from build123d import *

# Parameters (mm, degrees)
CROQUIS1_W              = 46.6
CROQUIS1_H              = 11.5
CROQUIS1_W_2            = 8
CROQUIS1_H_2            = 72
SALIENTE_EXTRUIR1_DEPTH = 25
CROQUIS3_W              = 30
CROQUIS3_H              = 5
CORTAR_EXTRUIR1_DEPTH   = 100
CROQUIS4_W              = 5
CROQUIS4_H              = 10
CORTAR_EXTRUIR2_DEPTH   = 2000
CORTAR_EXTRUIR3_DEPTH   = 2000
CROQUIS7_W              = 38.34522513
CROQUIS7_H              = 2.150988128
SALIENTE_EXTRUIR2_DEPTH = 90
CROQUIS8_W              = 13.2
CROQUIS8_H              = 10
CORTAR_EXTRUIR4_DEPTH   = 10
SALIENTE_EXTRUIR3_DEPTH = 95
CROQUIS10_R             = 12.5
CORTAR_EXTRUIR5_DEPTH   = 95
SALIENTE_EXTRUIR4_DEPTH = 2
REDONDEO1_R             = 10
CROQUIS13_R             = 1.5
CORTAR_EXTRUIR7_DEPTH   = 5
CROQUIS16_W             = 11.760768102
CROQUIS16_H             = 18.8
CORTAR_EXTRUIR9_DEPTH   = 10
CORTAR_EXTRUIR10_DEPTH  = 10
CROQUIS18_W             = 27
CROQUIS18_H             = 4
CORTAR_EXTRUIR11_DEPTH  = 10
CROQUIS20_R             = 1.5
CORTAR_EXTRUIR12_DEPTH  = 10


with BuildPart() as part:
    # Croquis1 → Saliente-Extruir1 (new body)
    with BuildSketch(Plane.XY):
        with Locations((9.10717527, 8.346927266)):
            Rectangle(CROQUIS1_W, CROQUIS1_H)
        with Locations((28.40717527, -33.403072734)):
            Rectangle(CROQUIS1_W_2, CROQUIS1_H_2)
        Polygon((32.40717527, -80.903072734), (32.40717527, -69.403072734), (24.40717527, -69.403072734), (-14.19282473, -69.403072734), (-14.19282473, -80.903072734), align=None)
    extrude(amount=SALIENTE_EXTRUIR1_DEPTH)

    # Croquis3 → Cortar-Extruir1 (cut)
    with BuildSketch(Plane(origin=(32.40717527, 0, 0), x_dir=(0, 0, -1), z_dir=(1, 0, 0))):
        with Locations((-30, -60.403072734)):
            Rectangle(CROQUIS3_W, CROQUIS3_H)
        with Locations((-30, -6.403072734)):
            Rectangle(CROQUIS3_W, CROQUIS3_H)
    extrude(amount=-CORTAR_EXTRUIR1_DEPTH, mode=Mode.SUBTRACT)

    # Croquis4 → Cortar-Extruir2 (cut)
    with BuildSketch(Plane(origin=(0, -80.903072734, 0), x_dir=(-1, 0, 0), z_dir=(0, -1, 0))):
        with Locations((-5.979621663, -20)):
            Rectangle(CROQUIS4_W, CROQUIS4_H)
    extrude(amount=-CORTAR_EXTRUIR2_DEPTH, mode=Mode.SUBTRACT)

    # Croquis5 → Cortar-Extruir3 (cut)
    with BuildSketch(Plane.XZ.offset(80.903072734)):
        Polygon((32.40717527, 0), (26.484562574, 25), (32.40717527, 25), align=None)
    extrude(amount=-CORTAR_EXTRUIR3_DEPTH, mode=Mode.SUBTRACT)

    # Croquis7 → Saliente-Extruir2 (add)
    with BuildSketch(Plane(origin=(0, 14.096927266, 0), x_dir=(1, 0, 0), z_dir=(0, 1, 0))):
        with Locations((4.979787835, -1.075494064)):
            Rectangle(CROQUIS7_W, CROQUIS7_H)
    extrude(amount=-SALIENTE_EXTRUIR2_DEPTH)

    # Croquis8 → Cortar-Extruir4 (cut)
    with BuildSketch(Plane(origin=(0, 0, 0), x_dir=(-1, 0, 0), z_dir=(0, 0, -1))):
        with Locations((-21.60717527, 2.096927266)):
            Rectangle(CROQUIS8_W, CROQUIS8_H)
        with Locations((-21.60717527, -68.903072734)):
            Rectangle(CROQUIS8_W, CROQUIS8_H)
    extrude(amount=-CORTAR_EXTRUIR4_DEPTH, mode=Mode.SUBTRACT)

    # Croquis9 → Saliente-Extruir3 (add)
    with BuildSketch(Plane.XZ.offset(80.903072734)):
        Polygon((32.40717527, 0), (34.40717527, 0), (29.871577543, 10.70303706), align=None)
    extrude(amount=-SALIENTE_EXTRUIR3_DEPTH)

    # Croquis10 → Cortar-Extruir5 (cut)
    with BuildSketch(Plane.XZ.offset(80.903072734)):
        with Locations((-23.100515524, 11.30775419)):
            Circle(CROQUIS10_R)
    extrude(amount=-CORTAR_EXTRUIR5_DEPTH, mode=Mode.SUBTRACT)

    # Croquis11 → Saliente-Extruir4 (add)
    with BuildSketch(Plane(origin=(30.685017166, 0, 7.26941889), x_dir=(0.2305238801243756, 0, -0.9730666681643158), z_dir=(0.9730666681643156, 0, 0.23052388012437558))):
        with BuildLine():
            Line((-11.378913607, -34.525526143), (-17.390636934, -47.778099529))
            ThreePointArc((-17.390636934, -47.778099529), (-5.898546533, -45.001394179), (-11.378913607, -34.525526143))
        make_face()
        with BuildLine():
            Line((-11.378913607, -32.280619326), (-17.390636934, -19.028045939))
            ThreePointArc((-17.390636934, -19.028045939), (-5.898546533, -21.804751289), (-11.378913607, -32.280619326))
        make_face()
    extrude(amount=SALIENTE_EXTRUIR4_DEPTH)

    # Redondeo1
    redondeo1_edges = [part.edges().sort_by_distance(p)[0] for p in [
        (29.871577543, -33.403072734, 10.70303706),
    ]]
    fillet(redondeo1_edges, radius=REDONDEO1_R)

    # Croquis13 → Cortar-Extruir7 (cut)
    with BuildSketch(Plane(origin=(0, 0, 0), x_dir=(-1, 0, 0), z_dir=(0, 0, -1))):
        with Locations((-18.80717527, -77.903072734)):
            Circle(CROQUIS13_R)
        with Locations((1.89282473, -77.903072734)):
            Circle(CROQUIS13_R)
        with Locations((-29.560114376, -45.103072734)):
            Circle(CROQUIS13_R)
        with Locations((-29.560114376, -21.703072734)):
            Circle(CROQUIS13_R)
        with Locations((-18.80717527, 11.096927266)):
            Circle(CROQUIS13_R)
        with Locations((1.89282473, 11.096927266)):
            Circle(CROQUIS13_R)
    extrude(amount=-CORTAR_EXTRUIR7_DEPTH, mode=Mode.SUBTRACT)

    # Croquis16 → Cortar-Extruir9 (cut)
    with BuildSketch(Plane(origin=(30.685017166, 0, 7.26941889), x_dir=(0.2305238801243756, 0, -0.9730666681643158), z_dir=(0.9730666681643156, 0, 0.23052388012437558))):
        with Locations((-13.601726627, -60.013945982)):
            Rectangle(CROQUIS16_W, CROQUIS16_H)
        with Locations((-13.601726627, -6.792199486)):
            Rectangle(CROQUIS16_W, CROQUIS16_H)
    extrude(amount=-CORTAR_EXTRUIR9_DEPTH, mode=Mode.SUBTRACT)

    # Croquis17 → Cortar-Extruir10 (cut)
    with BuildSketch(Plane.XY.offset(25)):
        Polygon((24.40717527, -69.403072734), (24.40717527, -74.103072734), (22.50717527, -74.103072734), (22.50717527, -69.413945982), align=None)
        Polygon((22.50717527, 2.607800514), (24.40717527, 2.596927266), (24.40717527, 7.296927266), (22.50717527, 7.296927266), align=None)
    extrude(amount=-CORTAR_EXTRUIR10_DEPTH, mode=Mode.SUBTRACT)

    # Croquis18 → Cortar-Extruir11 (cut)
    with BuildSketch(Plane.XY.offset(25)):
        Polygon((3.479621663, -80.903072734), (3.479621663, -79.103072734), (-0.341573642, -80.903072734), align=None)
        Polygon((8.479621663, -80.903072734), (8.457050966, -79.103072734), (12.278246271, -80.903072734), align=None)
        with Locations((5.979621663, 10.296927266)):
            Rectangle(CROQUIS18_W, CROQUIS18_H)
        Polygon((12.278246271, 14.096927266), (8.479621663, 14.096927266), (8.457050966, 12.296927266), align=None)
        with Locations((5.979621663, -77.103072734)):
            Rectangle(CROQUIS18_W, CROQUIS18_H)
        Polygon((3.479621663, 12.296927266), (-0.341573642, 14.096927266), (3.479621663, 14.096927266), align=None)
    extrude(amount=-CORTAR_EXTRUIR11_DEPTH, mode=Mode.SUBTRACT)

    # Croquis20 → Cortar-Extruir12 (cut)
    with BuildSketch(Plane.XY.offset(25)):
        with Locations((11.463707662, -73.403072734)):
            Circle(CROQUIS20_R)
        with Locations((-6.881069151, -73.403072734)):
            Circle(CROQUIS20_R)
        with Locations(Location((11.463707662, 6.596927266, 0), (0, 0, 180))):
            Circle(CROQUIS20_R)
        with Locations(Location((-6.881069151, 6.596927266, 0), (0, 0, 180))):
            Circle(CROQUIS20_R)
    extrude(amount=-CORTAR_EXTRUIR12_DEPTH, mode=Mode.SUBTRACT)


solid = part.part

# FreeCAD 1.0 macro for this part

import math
import FreeCAD as App
import Part
import Sketcher
from FreeCAD import Vector
Q = App.Units.Quantity


def edges_at(feature, points):
    """Names of the edges that pass closest to the given points."""
    edges = feature.Shape.Edges
    near = lambda p: min(range(len(edges)), key=lambda i: edges[i].distToShape(Part.Vertex(*p))[0])
    return sorted({f"Edge{near(p) + 1}" for p in points})


def add_polygon(sketch, points):
    """Adds a closed chain of lines whose ends are joined by coincident constraints."""
    first, n = sketch.GeometryCount, len(points)
    for a, b in zip(points, points[1:] + points[:1]):
        sketch.addGeometry(Part.LineSegment(App.Vector(*a, 0), App.Vector(*b, 0)), False)
    for i in range(n):
        sketch.addConstraint(Sketcher.Constraint("Coincident", first + i, 2, first + (i + 1) % n, 1))

doc = App.newDocument("Part")
params = doc.addObject("Spreadsheet::Sheet", "Params")
for row, (alias, value) in enumerate([
    ("sketch1_height", "72 mm"),
    ("sketch1_height2", "95 mm"),
    ("sketch1_width", "38.6 mm"),
    ("sketch1_width2", "46.6 mm"),
    ("pad1_length", "25 mm"),
    ("sketch2_width", "5 mm"),
    ("sketch2_height", "30 mm"),
    ("pocket1_length", "100 mm"),
    ("sketch3_width", "5 mm"),
    ("sketch3_height", "10 mm"),
    ("pocket2_length", "2000 mm"),
    ("sketch4_height", "25 mm"),
    ("pocket3_length", "2000 mm"),
    ("pad2_length", "90 mm"),
    ("sketch6_height", "10 mm"),
    ("sketch6_width", "13.2 mm"),
    ("pocket4_length", "10 mm"),
    ("sketch7_width", "2 mm"),
    ("pad3_length", "95 mm"),
    ("sketch8_diameter", "25 mm"),
    ("pocket5_length", "95 mm"),
    ("sketch9_radius", "7.5 mm"),
    ("pad4_length", "2 mm"),
    ("fillet_radius", "10 mm"),
    ("sketch10_diameter", "3 mm"),
    ("pocket6_length", "5 mm"),
    ("sketch11_height", "18.8 mm"),
    ("pocket7_length", "10 mm"),
    ("sketch12_width", "1.9 mm"),
    ("sketch12_height", "4.7 mm"),
    ("pocket8_length", "10 mm"),
    ("sketch13_width", "27 mm"),
    ("sketch13_width2", "11 mm"),
    ("sketch13_height", "4 mm"),
    ("sketch13_height2", "1.8 mm"),
    ("pocket9_length", "10 mm"),
    ("sketch14_diameter", "3 mm"),
    ("pocket10_length", "10 mm"),
], start=1):
    params.set(f"A{row}", alias)
    params.set(f"B{row}", "=" + value)
    params.setAlias(f"B{row}", alias)

body = doc.addObject("PartDesign::Body", "Body")

# Sketch on XY plane
sketch1 = body.newObject("Sketcher::SketchObject", "Sketch")
sketch1.AttachmentSupport = (doc.getObject("XY_Plane"), [""])
sketch1.MapMode = "FlatFace"
add_polygon(sketch1, [(-14, 14), (-14, 3), (24, 3), (24, -69), (-14, -69), (-14, -81), (32, -81), (32, 14)])  # lines 0-7
sketch1.addConstraint([
    Sketcher.Constraint("Vertical", 0),
    Sketcher.Constraint("Horizontal", 1),
    Sketcher.Constraint("Vertical", 2),
    Sketcher.Constraint("Horizontal", 3),
    Sketcher.Constraint("Vertical", 4),
    Sketcher.Constraint("Horizontal", 5),
    Sketcher.Constraint("Vertical", 6),
    Sketcher.Constraint("Horizontal", 7),
    Sketcher.Constraint("Vertical", 0, 2, 3, 2),
    Sketcher.Constraint("Equal", 0, 4),
    Sketcher.Constraint("DistanceY", 2, 2, 2, 1, Q("72 mm")),
    Sketcher.Constraint("DistanceY", 6, 1, 6, 2, Q("95 mm")),
    Sketcher.Constraint("DistanceX", 1, 1, 1, 2, Q("38.6 mm")),
    Sketcher.Constraint("DistanceX", 5, 1, 5, 2, Q("46.6 mm")),
    Sketcher.Constraint("DistanceX", 0, 2, -1, 1, Q("14.192825 mm")),
    Sketcher.Constraint("DistanceY", -1, 1, 0, 2, Q("2.596927 mm")),
])
sketch1.setExpression("Constraints[18]", "Params.sketch1_height")
sketch1.setExpression("Constraints[19]", "Params.sketch1_height2")
sketch1.setExpression("Constraints[20]", "Params.sketch1_width")
sketch1.setExpression("Constraints[21]", "Params.sketch1_width2")
pad1 = body.newObject("PartDesign::Pad", "Pad")
pad1.Profile = sketch1
pad1.setExpression("Length", "Params.pad1_length")

# Sketch on YZ plane
sketch2 = body.newObject("Sketcher::SketchObject", "Sketch001")
sketch2.AttachmentSupport = (doc.getObject("YZ_Plane"), [""])
sketch2.MapMode = "FlatFace"
sketch2.AttachmentOffset = App.Placement(Vector(0, 0, 32.407175), App.Rotation())
add_polygon(sketch2, [(-58, 45), (-63, 45), (-63, 15), (-58, 15)])  # lines 0-3
add_polygon(sketch2, [(-4, 45), (-9, 45), (-9, 15), (-4, 15)])  # lines 4-7
sketch2.addConstraint([
    Sketcher.Constraint("Horizontal", 0),
    Sketcher.Constraint("Vertical", 1),
    Sketcher.Constraint("Horizontal", 2),
    Sketcher.Constraint("Vertical", 3),
    Sketcher.Constraint("Horizontal", 4),
    Sketcher.Constraint("Vertical", 5),
    Sketcher.Constraint("Horizontal", 6),
    Sketcher.Constraint("Vertical", 7),
    Sketcher.Constraint("Horizontal", 3, 2, 4, 2),
    Sketcher.Constraint("Horizontal", 2, 2, 5, 2),
    Sketcher.Constraint("Equal", 2, 4),
    Sketcher.Constraint("DistanceX", 0, 2, 0, 1, Q("5 mm")),
    Sketcher.Constraint("DistanceY", 1, 2, 1, 1, Q("30 mm")),
    Sketcher.Constraint("DistanceY", -1, 1, 0, 2, Q("45 mm")),
    Sketcher.Constraint("DistanceX", 3, 2, 4, 2, Q("49 mm")),
    Sketcher.Constraint("DistanceX", 0, 2, -1, 1, Q("62.903073 mm")),
])
sketch2.setExpression("Constraints[19]", "Params.sketch2_width")
sketch2.setExpression("Constraints[20]", "Params.sketch2_height")
pocket1 = body.newObject("PartDesign::Pocket", "Pocket")
pocket1.Profile = sketch2
pocket1.setExpression("Length", "Params.pocket1_length")

# Sketch on XZ plane
sketch3 = body.newObject("Sketcher::SketchObject", "Sketch002")
sketch3.AttachmentSupport = (doc.getObject("XZ_Plane"), [""])
sketch3.MapMode = "FlatFace"
sketch3.AttachmentOffset = App.Placement(Vector(0, 0, 80.903073), App.Rotation())
add_polygon(sketch3, [(8, 15), (8, 25), (3, 25), (3, 15)])  # lines 0-3
sketch3.addConstraint([
    Sketcher.Constraint("Vertical", 0),
    Sketcher.Constraint("Horizontal", 1),
    Sketcher.Constraint("Vertical", 2),
    Sketcher.Constraint("Horizontal", 3),
    Sketcher.Constraint("DistanceX", 1, 2, 1, 1, Q("5 mm")),
    Sketcher.Constraint("DistanceY", 0, 1, 0, 2, Q("10 mm")),
    Sketcher.Constraint("DistanceY", -1, 1, 0, 2, Q("25 mm")),
    Sketcher.Constraint("DistanceX", -1, 1, 0, 2, Q("8.479622 mm")),
])
sketch3.setExpression("Constraints[8]", "Params.sketch3_width")
sketch3.setExpression("Constraints[9]", "Params.sketch3_height")
pocket2 = body.newObject("PartDesign::Pocket", "Pocket001")
pocket2.Profile = sketch3
pocket2.setExpression("Length", "Params.pocket2_length")

# Sketch on XZ plane
sketch4 = body.newObject("Sketcher::SketchObject", "Sketch003")
sketch4.AttachmentSupport = (doc.getObject("XZ_Plane"), [""])
sketch4.MapMode = "FlatFace"
sketch4.AttachmentOffset = App.Placement(Vector(0, 0, 80.903073), App.Rotation())
add_polygon(sketch4, [(26, 25), (32, 0), (32, 25)])  # lines 0-2
sketch4.addConstraint([
    Sketcher.Constraint("Vertical", 1),
    Sketcher.Constraint("Horizontal", 2),
    Sketcher.Constraint("PointOnObject", 0, 2, -1),
    Sketcher.Constraint("DistanceY", 1, 1, 1, 2, Q("25 mm")),
    Sketcher.Constraint("Distance", 0, Q("25.69197 mm")),
    Sketcher.Constraint("DistanceX", -1, 1, 0, 2, Q("32.407175 mm")),
])
sketch4.setExpression("Constraints[6]", "Params.sketch4_height")
pocket3 = body.newObject("PartDesign::Pocket", "Pocket002")
pocket3.Profile = sketch4
pocket3.setExpression("Length", "Params.pocket3_length")

# Sketch on XZ plane
sketch5 = body.newObject("Sketcher::SketchObject", "Sketch004")
sketch5.AttachmentSupport = (doc.getObject("XZ_Plane"), [""])
sketch5.MapMode = "FlatFace"
sketch5.AttachmentOffset = App.Placement(Vector(0, 0, -14.096927), App.Rotation())
add_polygon(sketch5, [(-14.2, 0), (-14.2, 2.2), (24.2, 2.2), (24.2, 0)])  # lines 0-3
sketch5.addConstraint([
    Sketcher.Constraint("Vertical", 0),
    Sketcher.Constraint("Horizontal", 1),
    Sketcher.Constraint("Vertical", 2),
    Sketcher.Constraint("Horizontal", 3),
    Sketcher.Constraint("PointOnObject", 2, 2, -1),
    Sketcher.Constraint("DistanceY", 0, 1, 0, 2, Q("2.150988 mm")),
    Sketcher.Constraint("DistanceX", -1, 1, 1, 2, Q("24.1524 mm")),
    Sketcher.Constraint("DistanceX", 1, 1, 1, 2, Q("38.345225 mm")),
])
pad2 = body.newObject("PartDesign::Pad", "Pad001")
pad2.Profile = sketch5
pad2.setExpression("Length", "Params.pad2_length")

# Sketch on XY plane
sketch6 = body.newObject("Sketcher::SketchObject", "Sketch005")
sketch6.AttachmentSupport = (doc.getObject("XY_Plane"), [""])
sketch6.MapMode = "FlatFace"
add_polygon(sketch6, [(28, 7), (28, -3), (15, -3), (15, 7)])  # lines 0-3
add_polygon(sketch6, [(28, -64), (28, -74), (15, -74), (15, -64)])  # lines 4-7
sketch6.addConstraint([
    Sketcher.Constraint("Vertical", 0),
    Sketcher.Constraint("Horizontal", 1),
    Sketcher.Constraint("Vertical", 2),
    Sketcher.Constraint("Horizontal", 3),
    Sketcher.Constraint("Vertical", 4),
    Sketcher.Constraint("Horizontal", 5),
    Sketcher.Constraint("Vertical", 6),
    Sketcher.Constraint("Horizontal", 7),
    Sketcher.Constraint("Vertical", 3, 2, 4, 2),
    Sketcher.Constraint("Vertical", 2, 2, 5, 2),
    Sketcher.Constraint("Equal", 2, 4),
    Sketcher.Constraint("DistanceY", 0, 2, 0, 1, Q("10 mm")),
    Sketcher.Constraint("DistanceX", 1, 2, 1, 1, Q("13.2 mm")),
    Sketcher.Constraint("DistanceY", 4, 2, 0, 2, Q("71 mm")),
    Sketcher.Constraint("DistanceX", -1, 1, 0, 2, Q("28.207175 mm")),
    Sketcher.Constraint("DistanceY", 0, 2, -1, 1, Q("2.903073 mm")),
])
sketch6.setExpression("Constraints[19]", "Params.sketch6_height")
sketch6.setExpression("Constraints[20]", "Params.sketch6_width")
pocket4 = body.newObject("PartDesign::Pocket", "Pocket003")
pocket4.Profile = sketch6
pocket4.setExpression("Length", "Params.pocket4_length")
pocket4.Reversed = True

# Sketch on XZ plane
sketch7 = body.newObject("Sketcher::SketchObject", "Sketch006")
sketch7.AttachmentSupport = (doc.getObject("XZ_Plane"), [""])
sketch7.MapMode = "FlatFace"
sketch7.AttachmentOffset = App.Placement(Vector(0, 0, 80.903073), App.Rotation())
add_polygon(sketch7, [(32.4, 0), (34.4, 0), (29.9, 10.7)])  # lines 0-2
sketch7.addConstraint([
    Sketcher.Constraint("Horizontal", 0),
    Sketcher.Constraint("PointOnObject", 0, 2, -1),
    Sketcher.Constraint("DistanceX", 0, 1, 0, 2, Q("2 mm")),
    Sketcher.Constraint("Distance", 1, Q("11.624399 mm")),
    Sketcher.Constraint("Distance", 2, Q("10.999284 mm")),
    Sketcher.Constraint("DistanceX", -1, 1, 0, 2, Q("34.407175 mm")),
])
sketch7.setExpression("Constraints[5]", "Params.sketch7_width")
pad3 = body.newObject("PartDesign::Pad", "Pad002")
pad3.Profile = sketch7
pad3.setExpression("Length", "Params.pad3_length")
pad3.Reversed = True

# Sketch on XZ plane
sketch8 = body.newObject("Sketcher::SketchObject", "Sketch007")
sketch8.AttachmentSupport = (doc.getObject("XZ_Plane"), [""])
sketch8.MapMode = "FlatFace"
sketch8.AttachmentOffset = App.Placement(Vector(0, 0, 80.903073), App.Rotation())
sketch8.addGeometry(Part.Circle(Vector(-23, 11, 0), Vector(0, 0, 1), 12), False)
sketch8.addConstraint([
    Sketcher.Constraint("Diameter", 0, Q("25 mm")),
    Sketcher.Constraint("DistanceX", 0, 3, -1, 1, Q("23.100516 mm")),
    Sketcher.Constraint("DistanceY", -1, 1, 0, 3, Q("11.307754 mm")),
])
sketch8.setExpression("Constraints[0]", "Params.sketch8_diameter")
pocket5 = body.newObject("PartDesign::Pocket", "Pocket004")
pocket5.Profile = sketch8
pocket5.setExpression("Length", "Params.pocket5_length")

# Sketch on an angled plane
sketch9 = body.newObject("Sketcher::SketchObject", "Sketch008")
sketch9.Placement = App.Placement(Vector(30.685017, 0, 7.269419), App.Rotation(Vector(0.23052388, 0, -0.973066668), Vector(0, 1, 0), Vector(0.973066668, 0, 0.23052388), "ZXY"))
sketch9.addGeometry([
    Part.LineSegment(Vector(-11, -35, 0), Vector(-17, -48, 0)),
    Part.ArcOfCircle(Part.Circle(Vector(-13, -42, 0), Vector(0, 0, 1), 8), math.radians(-128), math.radians(80)),
    Part.LineSegment(Vector(-17, -19, 0), Vector(-11, -32, 0)),
    Part.ArcOfCircle(Part.Circle(Vector(-13, -25, 0), Vector(0, 0, 1), 8), math.radians(-80), math.radians(128)),
], False)
sketch9.addConstraint([
    Sketcher.Constraint("Coincident", 0, 1, 1, 2),
    Sketcher.Constraint("Coincident", 1, 1, 0, 2),
    Sketcher.Constraint("Coincident", 2, 1, 3, 2),
    Sketcher.Constraint("Coincident", 3, 1, 2, 2),
    Sketcher.Constraint("Equal", 1, 3),
    Sketcher.Constraint("Vertical", 1, 3, 3, 3),
    Sketcher.Constraint("Vertical", 1, 1, 2, 1),
    Sketcher.Constraint("Vertical", 0, 1, 3, 1),
    Sketcher.Constraint("Radius", 1, Q("7.5 mm")),
    Sketcher.Constraint("DistanceY", 1, 3, 3, 3, Q("17 mm")),
    Sketcher.Constraint("DistanceY", 1, 1, -1, 1, Q("47.778099 mm")),
    Sketcher.Constraint("Distance", 0, Q("14.552372 mm")),
    Sketcher.Constraint("DistanceY", 3, 1, -1, 1, Q("32.280619 mm")),
    Sketcher.Constraint("DistanceX", 1, 3, -1, 1, Q("12.728657 mm")),
])
sketch9.setExpression("Constraints[8]", "Params.sketch9_radius")
pad4 = body.newObject("PartDesign::Pad", "Pad003")
pad4.Profile = sketch9
pad4.setExpression("Length", "Params.pad4_length")
doc.recompute()

fillet = body.newObject("PartDesign::Fillet", "Fillet")
fillet.Base = (pad4, edges_at(pad4, [(29.872, -33.403, 10.703)]))
fillet.setExpression("Radius", "Params.fillet_radius")

# Sketch on XY plane
sketch10 = body.newObject("Sketcher::SketchObject", "Sketch009")
sketch10.AttachmentSupport = (doc.getObject("XY_Plane"), [""])
sketch10.MapMode = "FlatFace"
sketch10.addGeometry([
    Part.Circle(Vector(18.8, -77.9, 0), Vector(0, 0, 1), 1.5),  # 0
    Part.Circle(Vector(-1.9, -77.9, 0), Vector(0, 0, 1), 1.5),  # 1
    Part.Circle(Vector(29.6, -45.1, 0), Vector(0, 0, 1), 1.5),  # 2
    Part.Circle(Vector(29.6, -21.7, 0), Vector(0, 0, 1), 1.5),  # 3
    Part.Circle(Vector(18.8, 11.1, 0), Vector(0, 0, 1), 1.5),  # 4
    Part.Circle(Vector(-1.9, 11.1, 0), Vector(0, 0, 1), 1.5),  # 5
], False)
sketch10.addConstraint([
    Sketcher.Constraint("Equal", 0, 1),
    Sketcher.Constraint("Equal", 1, 2),
    Sketcher.Constraint("Equal", 2, 3),
    Sketcher.Constraint("Equal", 3, 4),
    Sketcher.Constraint("Equal", 4, 5),
    Sketcher.Constraint("Horizontal", 0, 3, 1, 3),
    Sketcher.Constraint("Horizontal", 4, 3, 5, 3),
    Sketcher.Constraint("Vertical", 2, 3, 3, 3),
    Sketcher.Constraint("Vertical", 0, 3, 4, 3),
    Sketcher.Constraint("Vertical", 1, 3, 5, 3),
    Sketcher.Constraint("Diameter", 0, Q("3 mm")),
    Sketcher.Constraint("DistanceY", 0, 3, 4, 3, Q("89 mm")),
    Sketcher.Constraint("DistanceX", 1, 3, 0, 3, Q("20.7 mm")),
    Sketcher.Constraint("DistanceY", 0, 3, 2, 3, Q("32.8 mm")),
    Sketcher.Constraint("DistanceY", 2, 3, 3, 3, Q("23.4 mm")),
    Sketcher.Constraint("DistanceX", 0, 3, 2, 3, Q("10.752939 mm")),
    Sketcher.Constraint("DistanceX", -1, 1, 0, 3, Q("18.807175 mm")),
    Sketcher.Constraint("DistanceY", 0, 3, -1, 1, Q("77.903073 mm")),
])
sketch10.setExpression("Constraints[10]", "Params.sketch10_diameter")
pocket6 = body.newObject("PartDesign::Pocket", "Pocket005")
pocket6.Profile = sketch10
pocket6.setExpression("Length", "Params.pocket6_length")
pocket6.Reversed = True

# Sketch on an angled plane
sketch11 = body.newObject("Sketcher::SketchObject", "Sketch010")
sketch11.Placement = App.Placement(Vector(30.685017, 0, 7.269419), App.Rotation(Vector(0.23052388, 0, -0.973066668), Vector(0, 1, 0), Vector(0.973066668, 0, 0.23052388), "ZXY"))
add_polygon(sketch11, [(-19, -51), (-19, -69), (-8, -69), (-8, -51)])  # lines 0-3
add_polygon(sketch11, [(-19, 3), (-19, -16), (-8, -16), (-8, 3)])  # lines 4-7
sketch11.addConstraint([
    Sketcher.Constraint("Vertical", 0),
    Sketcher.Constraint("Horizontal", 1),
    Sketcher.Constraint("Vertical", 2),
    Sketcher.Constraint("Horizontal", 3),
    Sketcher.Constraint("Vertical", 4),
    Sketcher.Constraint("Horizontal", 5),
    Sketcher.Constraint("Vertical", 6),
    Sketcher.Constraint("Horizontal", 7),
    Sketcher.Constraint("Vertical", 3, 2, 4, 2),
    Sketcher.Constraint("Vertical", 2, 2, 5, 2),
    Sketcher.Constraint("Equal", 2, 4),
    Sketcher.Constraint("DistanceY", 0, 2, 0, 1, Q("18.8 mm")),
    Sketcher.Constraint("DistanceX", 1, 1, 1, 2, Q("11.760768 mm")),
    Sketcher.Constraint("DistanceY", 4, 2, -1, 1, Q("16.192199 mm")),
    Sketcher.Constraint("DistanceX", 0, 2, -1, 1, Q("19.482111 mm")),
    Sketcher.Constraint("DistanceY", 0, 2, -1, 1, Q("69.413946 mm")),
])
sketch11.setExpression("Constraints[19]", "Params.sketch11_height")
pocket7 = body.newObject("PartDesign::Pocket", "Pocket006")
pocket7.Profile = sketch11
pocket7.setExpression("Length", "Params.pocket7_length")

# Sketch on XY plane
sketch12 = body.newObject("Sketcher::SketchObject", "Sketch011")
sketch12.AttachmentSupport = (doc.getObject("XY_Plane"), [""])
sketch12.MapMode = "FlatFace"
sketch12.AttachmentOffset = App.Placement(Vector(0, 0, 25), App.Rotation())
add_polygon(sketch12, [(24.4, -74.1), (24.4, -69.4), (22.5, -69.4), (22.5, -74.1)])  # lines 0-3
add_polygon(sketch12, [(22.5, 2.6), (24.4, 2.6), (24.4, 7.3), (22.5, 7.3)])  # lines 4-7
sketch12.addConstraint([
    Sketcher.Constraint("Vertical", 0),
    Sketcher.Constraint("Vertical", 2),
    Sketcher.Constraint("Horizontal", 3),
    Sketcher.Constraint("Vertical", 5),
    Sketcher.Constraint("Horizontal", 6),
    Sketcher.Constraint("Vertical", 7),
    Sketcher.Constraint("Vertical", 3, 2, 4, 2),
    Sketcher.Constraint("Vertical", 2, 2, 6, 2),
    Sketcher.Constraint("Equal", 0, 5),
    Sketcher.Constraint("Equal", 2, 7),
    Sketcher.Constraint("DistanceX", 3, 1, 3, 2, Q("1.9 mm")),
    Sketcher.Constraint("DistanceY", 0, 1, 0, 2, Q("4.7 mm")),
    Sketcher.Constraint("DistanceY", 0, 2, 4, 2, Q("72 mm")),
    Sketcher.Constraint("DistanceY", -1, 1, 7, 2, Q("2.607801 mm")),
    Sketcher.Constraint("DistanceY", 2, 2, 2, 1, Q("4.689127 mm")),
    Sketcher.Constraint("DistanceX", -1, 1, 0, 2, Q("24.407175 mm")),
])
sketch12.setExpression("Constraints[18]", "Params.sketch12_width")
sketch12.setExpression("Constraints[19]", "Params.sketch12_height")
pocket8 = body.newObject("PartDesign::Pocket", "Pocket007")
pocket8.Profile = sketch12
pocket8.setExpression("Length", "Params.pocket8_length")

# Sketch on XY plane
sketch13 = body.newObject("Sketcher::SketchObject", "Sketch012")
sketch13.AttachmentSupport = (doc.getObject("XY_Plane"), [""])
sketch13.MapMode = "FlatFace"
sketch13.AttachmentOffset = App.Placement(Vector(0, 0, 25), App.Rotation())
add_polygon(sketch13, [(3.5, -80.9), (3.5, -79.1), (-0.3, -80.9)])  # lines 0-2
add_polygon(sketch13, [(8.5, -79.1), (8.5, -80.9), (12.3, -80.9)])  # lines 3-5
add_polygon(sketch13, [(-7.5, 12.3), (-7.5, 8.3), (19.5, 8.3), (19.5, 12.3), (8.5, 12.3), (3.5, 12.3)])  # lines 6-11
add_polygon(sketch13, [(12.3, 14.1), (8.5, 14.1), (8.5, 12.3)])  # lines 12-14
add_polygon(sketch13, [(-7.5, -75.1), (-7.5, -79.1), (3.5, -79.1), (8.5, -79.1), (19.5, -79.1), (19.5, -75.1)])  # lines 15-20
add_polygon(sketch13, [(-0.3, 14.1), (3.5, 12.3), (3.5, 14.1)])  # lines 21-23
sketch13.addConstraint([
    Sketcher.Constraint("Vertical", 0),
    Sketcher.Constraint("Horizontal", 2),
    Sketcher.Constraint("Horizontal", 4),
    Sketcher.Constraint("Vertical", 6),
    Sketcher.Constraint("Horizontal", 7),
    Sketcher.Constraint("Vertical", 8),
    Sketcher.Constraint("Horizontal", 9),
    Sketcher.Constraint("Horizontal", 10),
    Sketcher.Constraint("Horizontal", 11),
    Sketcher.Constraint("Horizontal", 12),
    Sketcher.Constraint("Vertical", 15),
    Sketcher.Constraint("Horizontal", 16),
    Sketcher.Constraint("Horizontal", 17),
    Sketcher.Constraint("Horizontal", 18),
    Sketcher.Constraint("Vertical", 19),
    Sketcher.Constraint("Horizontal", 20),
    Sketcher.Constraint("Vertical", 22),
    Sketcher.Constraint("Horizontal", 23),
    Sketcher.Constraint("Coincident", 13, 2, 9, 2),
    Sketcher.Constraint("Coincident", 16, 2, 0, 2),
    Sketcher.Constraint("Coincident", 17, 2, 5, 2),
    Sketcher.Constraint("Coincident", 21, 2, 10, 2),
    Sketcher.Constraint("Parallel", 1, 14),
    Sketcher.Constraint("Parallel", 5, 21),
    Sketcher.Constraint("Horizontal", 2, 2, 3, 2),
    Sketcher.Constraint("Horizontal", 14, 2, 22, 2),
    Sketcher.Constraint("Vertical", 5, 2, 9, 2),
    Sketcher.Constraint("Vertical", 2, 2, 10, 2),
    Sketcher.Constraint("Vertical", 3, 2, 12, 2),
    Sketcher.Constraint("Vertical", 4, 2, 14, 2),
    Sketcher.Constraint("Vertical", 11, 2, 15, 2),
    Sketcher.Constraint("Vertical", 8, 2, 18, 2),
    Sketcher.Constraint("Vertical", 1, 2, 23, 2),
    Sketcher.Constraint("Equal", 8, 15),
    Sketcher.Constraint("DistanceX", 7, 1, 7, 2, Q("27 mm")),
    Sketcher.Constraint("DistanceX", 11, 2, 11, 1, Q("11 mm")),
    Sketcher.Constraint("DistanceY", 6, 2, 6, 1, Q("4 mm")),
    Sketcher.Constraint("DistanceY", 0, 1, 0, 2, Q("1.8 mm")),
    Sketcher.Constraint("DistanceX", 2, 2, 3, 2, Q("5 mm")),
    Sketcher.Constraint("DistanceY", 0, 2, 6, 2, Q("87.4 mm")),
    Sketcher.Constraint("DistanceX", 9, 2, 9, 1, Q("11.022571 mm")),
    Sketcher.Constraint("DistanceX", 2, 1, 2, 2, Q("3.821195 mm")),
    Sketcher.Constraint("DistanceX", -1, 1, 0, 2, Q("3.479622 mm")),
    Sketcher.Constraint("DistanceY", 0, 2, -1, 1, Q("79.103073 mm")),
])
sketch13.setExpression("Constraints[58]", "Params.sketch13_width")
sketch13.setExpression("Constraints[59]", "Params.sketch13_width2")
sketch13.setExpression("Constraints[60]", "Params.sketch13_height")
sketch13.setExpression("Constraints[61]", "Params.sketch13_height2")
pocket9 = body.newObject("PartDesign::Pocket", "Pocket008")
pocket9.Profile = sketch13
pocket9.setExpression("Length", "Params.pocket9_length")

# Sketch on XY plane
sketch14 = body.newObject("Sketcher::SketchObject", "Sketch013")
sketch14.AttachmentSupport = (doc.getObject("XY_Plane"), [""])
sketch14.MapMode = "FlatFace"
sketch14.AttachmentOffset = App.Placement(Vector(0, 0, 25), App.Rotation())
sketch14.addGeometry([
    Part.Circle(Vector(11.5, -73.4, 0), Vector(0, 0, 1), 1.5),
    Part.Circle(Vector(-6.9, -73.4, 0), Vector(0, 0, 1), 1.5),
    Part.Circle(Vector(11.5, 6.6, 0), Vector(0, 0, 1), 1.5),
    Part.Circle(Vector(-6.9, 6.6, 0), Vector(0, 0, 1), 1.5),
], False)
sketch14.addConstraint([
    Sketcher.Constraint("Equal", 0, 1),
    Sketcher.Constraint("Equal", 1, 2),
    Sketcher.Constraint("Equal", 2, 3),
    Sketcher.Constraint("Horizontal", 0, 3, 1, 3),
    Sketcher.Constraint("Horizontal", 2, 3, 3, 3),
    Sketcher.Constraint("Vertical", 0, 3, 2, 3),
    Sketcher.Constraint("Vertical", 1, 3, 3, 3),
    Sketcher.Constraint("Diameter", 0, Q("3 mm")),
    Sketcher.Constraint("DistanceY", 0, 3, 2, 3, Q("80 mm")),
    Sketcher.Constraint("DistanceX", 1, 3, -1, 1, Q("6.881069 mm")),
    Sketcher.Constraint("DistanceX", -1, 1, 0, 3, Q("11.463708 mm")),
    Sketcher.Constraint("DistanceY", 0, 3, -1, 1, Q("73.403073 mm")),
])
sketch14.setExpression("Constraints[7]", "Params.sketch14_diameter")
pocket10 = body.newObject("PartDesign::Pocket", "Pocket009")
pocket10.Profile = sketch14
pocket10.setExpression("Length", "Params.pocket10_length")

doc.recompute()
